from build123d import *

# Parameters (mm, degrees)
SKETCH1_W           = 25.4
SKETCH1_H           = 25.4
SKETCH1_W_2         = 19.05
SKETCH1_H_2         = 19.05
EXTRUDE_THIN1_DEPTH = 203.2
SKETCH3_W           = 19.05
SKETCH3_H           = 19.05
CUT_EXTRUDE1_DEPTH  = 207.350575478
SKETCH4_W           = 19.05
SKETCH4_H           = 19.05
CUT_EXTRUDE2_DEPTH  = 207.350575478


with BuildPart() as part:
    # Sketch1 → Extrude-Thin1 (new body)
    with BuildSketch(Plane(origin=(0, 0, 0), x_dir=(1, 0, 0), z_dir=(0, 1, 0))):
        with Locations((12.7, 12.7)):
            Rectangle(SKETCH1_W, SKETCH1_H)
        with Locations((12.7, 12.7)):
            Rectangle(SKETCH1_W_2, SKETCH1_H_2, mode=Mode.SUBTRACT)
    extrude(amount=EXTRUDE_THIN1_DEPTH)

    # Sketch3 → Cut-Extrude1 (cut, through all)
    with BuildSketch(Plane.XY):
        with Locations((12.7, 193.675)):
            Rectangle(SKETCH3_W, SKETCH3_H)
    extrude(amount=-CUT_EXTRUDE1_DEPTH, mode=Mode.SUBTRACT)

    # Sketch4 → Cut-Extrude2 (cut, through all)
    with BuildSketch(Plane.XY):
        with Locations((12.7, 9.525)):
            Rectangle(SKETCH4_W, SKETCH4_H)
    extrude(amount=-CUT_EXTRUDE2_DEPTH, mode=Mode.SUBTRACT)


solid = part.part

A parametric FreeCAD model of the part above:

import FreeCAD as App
import Part
import Sketcher

V = App.Vector
Q = App.Units.Quantity

doc = App.newDocument("Part")
params = doc.addObject("Spreadsheet::Sheet", "Params")
for row, (alias, value) in enumerate([
    ("sketch1_width", "1 in"),
    ("sketch1_width2", "0.75 in"),
    ("pad1_length", "8 in"),
    ("sketch2_width", "0.75 in"),
    ("sketch3_width", "0.75 in"),
], start=1):
    params.set(f"A{row}", alias)
    params.set(f"B{row}", "=" + value)
    params.setAlias(f"B{row}", alias)

body = doc.addObject("PartDesign::Body", "Body")

sketch1 = doc.addObject("Sketcher::SketchObject", "Sketch")
body.addObject(sketch1)
sketch1.AttachmentSupport = (doc.XZ_Plane, [""])
sketch1.MapMode = "FlatFace"
sketch1.addGeometry([
    Part.LineSegment(V(0, -25, 0), V(0, 0, 0)),
    Part.LineSegment(V(0, 0, 0), V(25, 0, 0)),
    Part.LineSegment(V(25, 0, 0), V(25, -25, 0)),
    Part.LineSegment(V(25, -25, 0), V(0, -25, 0)),
    Part.LineSegment(V(22, -3, 0), V(3, -3, 0)),
    Part.LineSegment(V(3, -3, 0), V(3, -22, 0)),
    Part.LineSegment(V(3, -22, 0), V(22, -22, 0)),
    Part.LineSegment(V(22, -22, 0), V(22, -3, 0)),
], False)
sketch1.addConstraint([
    Sketcher.Constraint("Coincident", 0, 2, 1, 1),
    Sketcher.Constraint("Coincident", 1, 2, 2, 1),
    Sketcher.Constraint("Coincident", 2, 2, 3, 1),
    Sketcher.Constraint("Coincident", 3, 2, 0, 1),
    Sketcher.Constraint("Coincident", 4, 2, 5, 1),
    Sketcher.Constraint("Coincident", 5, 2, 6, 1),
    Sketcher.Constraint("Coincident", 6, 2, 7, 1),
    Sketcher.Constraint("Coincident", 7, 2, 4, 1),
    Sketcher.Constraint("Vertical", 0),
    Sketcher.Constraint("Horizontal", 1),
    Sketcher.Constraint("Vertical", 2),
    Sketcher.Constraint("Horizontal", 3),
    Sketcher.Constraint("Horizontal", 4),
    Sketcher.Constraint("Vertical", 5),
    Sketcher.Constraint("Horizontal", 6),
    Sketcher.Constraint("Vertical", 7),
    Sketcher.Constraint("Coincident", 0, 2, -1, 1),
    Sketcher.Constraint("Equal", 3, 0),
    Sketcher.Constraint("Equal", 6, 5),
    Sketcher.Constraint("DistanceX", 1, 1, 1, 2, Q("1 in")),
    Sketcher.Constraint("DistanceX", 4, 2, 4, 1, Q("0.75 in")),
    Sketcher.Constraint("DistanceX", -1, 1, 4, 2, Q("0.125 in")),
    Sketcher.Constraint("DistanceY", 4, 2, -1, 1, Q("0.125 in")),
])
sketch1.setExpression("Constraints[19]", "Params.sketch1_width")
sketch1.setExpression("Constraints[20]", "Params.sketch1_width2")
pad1 = doc.addObject("PartDesign::Pad", "Pad")
body.addObject(pad1)
pad1.Profile = sketch1
pad1.setExpression("Length", "Params.pad1_length")
pad1.Reversed = True

sketch2 = doc.addObject("Sketcher::SketchObject", "Sketch001")
body.addObject(sketch2)
sketch2.AttachmentSupport = (doc.XY_Plane, [""])
sketch2.MapMode = "FlatFace"
sketch2.addGeometry([
    Part.LineSegment(V(3, 203, 0), V(3, 184, 0)),
    Part.LineSegment(V(3, 184, 0), V(22, 184, 0)),
    Part.LineSegment(V(22, 184, 0), V(22, 203, 0)),
    Part.LineSegment(V(22, 203, 0), V(3, 203, 0)),
], False)
sketch2.addConstraint([
    Sketcher.Constraint("Coincident", 0, 2, 1, 1),
    Sketcher.Constraint("Coincident", 1, 2, 2, 1),
    Sketcher.Constraint("Coincident", 2, 2, 3, 1),
    Sketcher.Constraint("Coincident", 3, 2, 0, 1),
    Sketcher.Constraint("Vertical", 0),
    Sketcher.Constraint("Horizontal", 1),
    Sketcher.Constraint("Vertical", 2),
    Sketcher.Constraint("Horizontal", 3),
    Sketcher.Constraint("Equal", 3, 0),
    Sketcher.Constraint("DistanceY", -1, 1, 2, 2, Q("8 in")),
    Sketcher.Constraint("DistanceX", 1, 1, 1, 2, Q("0.75 in")),
    Sketcher.Constraint("DistanceX", -1, 1, 0, 2, Q("0.125 in")),
])
sketch2.setExpression("Constraints[10]", "Params.sketch2_width")
pocket1 = doc.addObject("PartDesign::Pocket", "Pocket")
body.addObject(pocket1)
pocket1.Profile = sketch2
pocket1.Type = "ThroughAll"

sketch3 = doc.addObject("Sketcher::SketchObject", "Sketch002")
body.addObject(sketch3)
sketch3.AttachmentSupport = (doc.XY_Plane, [""])
sketch3.MapMode = "FlatFace"
sketch3.addGeometry([
    Part.LineSegment(V(3, 19, 0), V(3, 0, 0)),
    Part.LineSegment(V(3, 0, 0), V(22, 0, 0)),
    Part.LineSegment(V(22, 0, 0), V(22, 19, 0)),
    Part.LineSegment(V(22, 19, 0), V(3, 19, 0)),
], False)
sketch3.addConstraint([
    Sketcher.Constraint("Coincident", 0, 2, 1, 1),
    Sketcher.Constraint("Coincident", 1, 2, 2, 1),
    Sketcher.Constraint("Coincident", 2, 2, 3, 1),
    Sketcher.Constraint("Coincident", 3, 2, 0, 1),
    Sketcher.Constraint("Vertical", 0),
    Sketcher.Constraint("Horizontal", 1),
    Sketcher.Constraint("Vertical", 2),
    Sketcher.Constraint("Horizontal", 3),
    Sketcher.Constraint("PointOnObject", 0, 2, -1),
    Sketcher.Constraint("Equal", 3, 0),
    Sketcher.Constraint("DistanceX", 1, 1, 1, 2, Q("0.75 in")),
    Sketcher.Constraint("DistanceX", -1, 1, 0, 2, Q("0.125 in")),
])
sketch3.setExpression("Constraints[10]", "Params.sketch3_width")
pocket2 = doc.addObject("PartDesign::Pocket", "Pocket001")
body.addObject(pocket2)
pocket2.Profile = sketch3
pocket2.Type = "ThroughAll"

doc.recompute()
